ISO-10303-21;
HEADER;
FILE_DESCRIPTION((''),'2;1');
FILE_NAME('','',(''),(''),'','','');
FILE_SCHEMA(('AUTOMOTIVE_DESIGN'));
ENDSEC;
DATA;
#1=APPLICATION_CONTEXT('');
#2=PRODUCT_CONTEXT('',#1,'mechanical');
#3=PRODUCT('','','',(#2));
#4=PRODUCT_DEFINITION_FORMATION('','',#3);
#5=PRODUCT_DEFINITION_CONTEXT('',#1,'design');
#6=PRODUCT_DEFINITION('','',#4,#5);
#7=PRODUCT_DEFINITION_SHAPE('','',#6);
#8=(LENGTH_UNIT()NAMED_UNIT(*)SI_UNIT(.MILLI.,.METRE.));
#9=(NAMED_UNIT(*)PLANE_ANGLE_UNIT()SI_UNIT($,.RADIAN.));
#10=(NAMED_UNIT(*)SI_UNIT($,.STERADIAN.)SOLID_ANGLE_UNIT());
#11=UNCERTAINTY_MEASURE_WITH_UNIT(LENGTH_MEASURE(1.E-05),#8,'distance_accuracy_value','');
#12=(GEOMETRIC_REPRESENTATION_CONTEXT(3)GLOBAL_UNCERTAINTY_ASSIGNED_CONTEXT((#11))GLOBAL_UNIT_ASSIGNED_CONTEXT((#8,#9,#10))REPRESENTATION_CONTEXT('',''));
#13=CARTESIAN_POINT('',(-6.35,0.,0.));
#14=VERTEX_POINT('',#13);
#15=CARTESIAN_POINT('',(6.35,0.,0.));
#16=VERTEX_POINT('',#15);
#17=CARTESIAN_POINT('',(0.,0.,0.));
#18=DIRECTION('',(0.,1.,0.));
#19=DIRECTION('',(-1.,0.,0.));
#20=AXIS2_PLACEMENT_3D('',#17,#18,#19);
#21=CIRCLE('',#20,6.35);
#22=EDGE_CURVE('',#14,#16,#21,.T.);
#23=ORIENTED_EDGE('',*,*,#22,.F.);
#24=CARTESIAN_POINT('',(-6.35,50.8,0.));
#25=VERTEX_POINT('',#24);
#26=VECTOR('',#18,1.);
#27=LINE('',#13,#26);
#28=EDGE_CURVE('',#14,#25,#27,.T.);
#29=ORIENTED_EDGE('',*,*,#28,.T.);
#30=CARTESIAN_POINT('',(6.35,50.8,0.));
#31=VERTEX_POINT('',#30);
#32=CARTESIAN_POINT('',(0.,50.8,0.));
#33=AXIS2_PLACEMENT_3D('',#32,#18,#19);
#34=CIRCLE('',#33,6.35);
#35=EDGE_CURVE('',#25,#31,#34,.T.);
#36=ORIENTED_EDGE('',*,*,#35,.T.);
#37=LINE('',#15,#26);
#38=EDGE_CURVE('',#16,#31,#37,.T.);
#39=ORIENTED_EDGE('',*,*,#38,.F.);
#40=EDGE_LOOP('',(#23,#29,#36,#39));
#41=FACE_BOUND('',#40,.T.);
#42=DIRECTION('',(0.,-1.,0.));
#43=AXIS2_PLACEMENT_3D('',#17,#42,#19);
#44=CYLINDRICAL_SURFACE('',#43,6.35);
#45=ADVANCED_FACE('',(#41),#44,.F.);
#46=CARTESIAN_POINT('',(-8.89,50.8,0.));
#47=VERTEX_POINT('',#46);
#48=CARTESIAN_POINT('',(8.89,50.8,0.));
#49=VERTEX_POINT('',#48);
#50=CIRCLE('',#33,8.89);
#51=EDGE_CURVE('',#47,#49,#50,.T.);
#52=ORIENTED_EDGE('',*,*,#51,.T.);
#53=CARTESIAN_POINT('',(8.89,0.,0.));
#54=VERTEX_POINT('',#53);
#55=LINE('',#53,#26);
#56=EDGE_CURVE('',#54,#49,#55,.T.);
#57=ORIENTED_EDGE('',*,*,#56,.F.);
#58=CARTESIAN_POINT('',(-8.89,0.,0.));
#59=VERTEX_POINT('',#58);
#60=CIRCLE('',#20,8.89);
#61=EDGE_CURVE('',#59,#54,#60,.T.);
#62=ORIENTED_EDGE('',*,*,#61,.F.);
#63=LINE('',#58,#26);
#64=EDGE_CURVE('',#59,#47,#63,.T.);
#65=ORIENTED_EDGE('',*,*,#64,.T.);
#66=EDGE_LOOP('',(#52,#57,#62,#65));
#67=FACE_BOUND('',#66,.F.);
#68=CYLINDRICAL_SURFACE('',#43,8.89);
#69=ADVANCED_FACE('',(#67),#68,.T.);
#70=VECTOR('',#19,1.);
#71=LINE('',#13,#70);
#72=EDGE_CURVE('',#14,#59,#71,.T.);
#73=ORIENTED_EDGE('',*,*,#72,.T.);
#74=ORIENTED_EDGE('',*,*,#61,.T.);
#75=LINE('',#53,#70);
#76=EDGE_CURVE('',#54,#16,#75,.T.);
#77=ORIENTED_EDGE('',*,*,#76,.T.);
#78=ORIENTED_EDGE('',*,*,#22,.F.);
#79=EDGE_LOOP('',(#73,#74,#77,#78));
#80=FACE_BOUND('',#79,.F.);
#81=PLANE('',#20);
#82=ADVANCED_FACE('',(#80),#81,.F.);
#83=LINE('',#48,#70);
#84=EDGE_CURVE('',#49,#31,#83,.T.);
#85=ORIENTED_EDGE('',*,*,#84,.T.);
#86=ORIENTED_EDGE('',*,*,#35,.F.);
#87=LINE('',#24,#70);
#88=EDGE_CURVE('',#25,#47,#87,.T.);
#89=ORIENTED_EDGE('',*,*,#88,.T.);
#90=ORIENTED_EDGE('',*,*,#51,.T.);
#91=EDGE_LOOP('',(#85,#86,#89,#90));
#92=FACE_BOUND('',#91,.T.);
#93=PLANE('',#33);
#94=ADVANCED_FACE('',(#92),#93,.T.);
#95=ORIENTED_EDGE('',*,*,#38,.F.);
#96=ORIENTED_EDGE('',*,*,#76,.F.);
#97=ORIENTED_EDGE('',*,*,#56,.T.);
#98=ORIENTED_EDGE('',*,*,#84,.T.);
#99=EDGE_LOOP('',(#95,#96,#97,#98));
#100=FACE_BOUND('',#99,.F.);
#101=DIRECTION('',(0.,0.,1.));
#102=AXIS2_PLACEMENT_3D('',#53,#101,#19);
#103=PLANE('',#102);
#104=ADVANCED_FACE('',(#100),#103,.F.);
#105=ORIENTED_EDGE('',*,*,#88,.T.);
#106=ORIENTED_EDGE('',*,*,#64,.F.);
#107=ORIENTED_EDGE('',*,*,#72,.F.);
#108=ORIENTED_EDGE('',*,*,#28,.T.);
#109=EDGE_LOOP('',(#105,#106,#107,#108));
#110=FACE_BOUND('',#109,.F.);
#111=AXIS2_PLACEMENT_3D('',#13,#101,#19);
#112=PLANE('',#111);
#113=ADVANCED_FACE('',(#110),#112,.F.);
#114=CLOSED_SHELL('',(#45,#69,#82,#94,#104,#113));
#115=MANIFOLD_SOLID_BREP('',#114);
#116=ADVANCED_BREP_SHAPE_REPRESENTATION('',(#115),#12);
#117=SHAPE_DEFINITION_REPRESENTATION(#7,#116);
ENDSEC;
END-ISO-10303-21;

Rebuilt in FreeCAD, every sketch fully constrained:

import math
import FreeCAD as App
import Part
import Sketcher
from FreeCAD import Vector
Q = App.Units.Quantity

doc = App.newDocument("Part")
body = doc.addObject("PartDesign::Body", "Body")

# Sketch on XZ plane
sketch1 = body.newObject("Sketcher::SketchObject", "Sketch")
sketch1.AttachmentSupport = (doc.getObject("XZ_Plane"), [""])
sketch1.MapMode = "FlatFace"
sketch1.addGeometry([
    Part.LineSegment(Vector(-6.3, 0, 0), Vector(-8.9, 0, 0)),
    Part.ArcOfCircle(Part.Circle(Vector(0, 0, 0), Vector(0, 0, 1), 8.9), math.radians(0), math.radians(180)),
    Part.LineSegment(Vector(8.9, 0, 0), Vector(6.3, 0, 0)),
    Part.ArcOfCircle(Part.Circle(Vector(0, 0, 0), Vector(0, 0, 1), 6.3), math.radians(0), math.radians(180)),
], False)
sketch1.addConstraint([
    Sketcher.Constraint("Coincident", 0, 2, 1, 2),
    Sketcher.Constraint("Coincident", 1, 1, 2, 1),
    Sketcher.Constraint("Coincident", 2, 2, 3, 1),
    Sketcher.Constraint("Coincident", 3, 2, 0, 1),
    Sketcher.Constraint("Horizontal", 0),
    Sketcher.Constraint("Horizontal", 2),
    Sketcher.Constraint("Coincident", 1, 3, -1, 1),
    Sketcher.Constraint("Coincident", 3, 3, -1, 1),
    Sketcher.Constraint("PointOnObject", 0, 2, -1),
    Sketcher.Constraint("PointOnObject", 1, 1, -1),
    Sketcher.Constraint("Radius", 1, Q("0.35 in")),
    Sketcher.Constraint("DistanceX", 0, 2, 0, 1, Q("0.1 in")),
])
pad1 = body.newObject("PartDesign::Pad", "Pad")
pad1.Profile = sketch1
pad1.Length = Q("2 in")
pad1.Reversed = True

doc.recompute()
